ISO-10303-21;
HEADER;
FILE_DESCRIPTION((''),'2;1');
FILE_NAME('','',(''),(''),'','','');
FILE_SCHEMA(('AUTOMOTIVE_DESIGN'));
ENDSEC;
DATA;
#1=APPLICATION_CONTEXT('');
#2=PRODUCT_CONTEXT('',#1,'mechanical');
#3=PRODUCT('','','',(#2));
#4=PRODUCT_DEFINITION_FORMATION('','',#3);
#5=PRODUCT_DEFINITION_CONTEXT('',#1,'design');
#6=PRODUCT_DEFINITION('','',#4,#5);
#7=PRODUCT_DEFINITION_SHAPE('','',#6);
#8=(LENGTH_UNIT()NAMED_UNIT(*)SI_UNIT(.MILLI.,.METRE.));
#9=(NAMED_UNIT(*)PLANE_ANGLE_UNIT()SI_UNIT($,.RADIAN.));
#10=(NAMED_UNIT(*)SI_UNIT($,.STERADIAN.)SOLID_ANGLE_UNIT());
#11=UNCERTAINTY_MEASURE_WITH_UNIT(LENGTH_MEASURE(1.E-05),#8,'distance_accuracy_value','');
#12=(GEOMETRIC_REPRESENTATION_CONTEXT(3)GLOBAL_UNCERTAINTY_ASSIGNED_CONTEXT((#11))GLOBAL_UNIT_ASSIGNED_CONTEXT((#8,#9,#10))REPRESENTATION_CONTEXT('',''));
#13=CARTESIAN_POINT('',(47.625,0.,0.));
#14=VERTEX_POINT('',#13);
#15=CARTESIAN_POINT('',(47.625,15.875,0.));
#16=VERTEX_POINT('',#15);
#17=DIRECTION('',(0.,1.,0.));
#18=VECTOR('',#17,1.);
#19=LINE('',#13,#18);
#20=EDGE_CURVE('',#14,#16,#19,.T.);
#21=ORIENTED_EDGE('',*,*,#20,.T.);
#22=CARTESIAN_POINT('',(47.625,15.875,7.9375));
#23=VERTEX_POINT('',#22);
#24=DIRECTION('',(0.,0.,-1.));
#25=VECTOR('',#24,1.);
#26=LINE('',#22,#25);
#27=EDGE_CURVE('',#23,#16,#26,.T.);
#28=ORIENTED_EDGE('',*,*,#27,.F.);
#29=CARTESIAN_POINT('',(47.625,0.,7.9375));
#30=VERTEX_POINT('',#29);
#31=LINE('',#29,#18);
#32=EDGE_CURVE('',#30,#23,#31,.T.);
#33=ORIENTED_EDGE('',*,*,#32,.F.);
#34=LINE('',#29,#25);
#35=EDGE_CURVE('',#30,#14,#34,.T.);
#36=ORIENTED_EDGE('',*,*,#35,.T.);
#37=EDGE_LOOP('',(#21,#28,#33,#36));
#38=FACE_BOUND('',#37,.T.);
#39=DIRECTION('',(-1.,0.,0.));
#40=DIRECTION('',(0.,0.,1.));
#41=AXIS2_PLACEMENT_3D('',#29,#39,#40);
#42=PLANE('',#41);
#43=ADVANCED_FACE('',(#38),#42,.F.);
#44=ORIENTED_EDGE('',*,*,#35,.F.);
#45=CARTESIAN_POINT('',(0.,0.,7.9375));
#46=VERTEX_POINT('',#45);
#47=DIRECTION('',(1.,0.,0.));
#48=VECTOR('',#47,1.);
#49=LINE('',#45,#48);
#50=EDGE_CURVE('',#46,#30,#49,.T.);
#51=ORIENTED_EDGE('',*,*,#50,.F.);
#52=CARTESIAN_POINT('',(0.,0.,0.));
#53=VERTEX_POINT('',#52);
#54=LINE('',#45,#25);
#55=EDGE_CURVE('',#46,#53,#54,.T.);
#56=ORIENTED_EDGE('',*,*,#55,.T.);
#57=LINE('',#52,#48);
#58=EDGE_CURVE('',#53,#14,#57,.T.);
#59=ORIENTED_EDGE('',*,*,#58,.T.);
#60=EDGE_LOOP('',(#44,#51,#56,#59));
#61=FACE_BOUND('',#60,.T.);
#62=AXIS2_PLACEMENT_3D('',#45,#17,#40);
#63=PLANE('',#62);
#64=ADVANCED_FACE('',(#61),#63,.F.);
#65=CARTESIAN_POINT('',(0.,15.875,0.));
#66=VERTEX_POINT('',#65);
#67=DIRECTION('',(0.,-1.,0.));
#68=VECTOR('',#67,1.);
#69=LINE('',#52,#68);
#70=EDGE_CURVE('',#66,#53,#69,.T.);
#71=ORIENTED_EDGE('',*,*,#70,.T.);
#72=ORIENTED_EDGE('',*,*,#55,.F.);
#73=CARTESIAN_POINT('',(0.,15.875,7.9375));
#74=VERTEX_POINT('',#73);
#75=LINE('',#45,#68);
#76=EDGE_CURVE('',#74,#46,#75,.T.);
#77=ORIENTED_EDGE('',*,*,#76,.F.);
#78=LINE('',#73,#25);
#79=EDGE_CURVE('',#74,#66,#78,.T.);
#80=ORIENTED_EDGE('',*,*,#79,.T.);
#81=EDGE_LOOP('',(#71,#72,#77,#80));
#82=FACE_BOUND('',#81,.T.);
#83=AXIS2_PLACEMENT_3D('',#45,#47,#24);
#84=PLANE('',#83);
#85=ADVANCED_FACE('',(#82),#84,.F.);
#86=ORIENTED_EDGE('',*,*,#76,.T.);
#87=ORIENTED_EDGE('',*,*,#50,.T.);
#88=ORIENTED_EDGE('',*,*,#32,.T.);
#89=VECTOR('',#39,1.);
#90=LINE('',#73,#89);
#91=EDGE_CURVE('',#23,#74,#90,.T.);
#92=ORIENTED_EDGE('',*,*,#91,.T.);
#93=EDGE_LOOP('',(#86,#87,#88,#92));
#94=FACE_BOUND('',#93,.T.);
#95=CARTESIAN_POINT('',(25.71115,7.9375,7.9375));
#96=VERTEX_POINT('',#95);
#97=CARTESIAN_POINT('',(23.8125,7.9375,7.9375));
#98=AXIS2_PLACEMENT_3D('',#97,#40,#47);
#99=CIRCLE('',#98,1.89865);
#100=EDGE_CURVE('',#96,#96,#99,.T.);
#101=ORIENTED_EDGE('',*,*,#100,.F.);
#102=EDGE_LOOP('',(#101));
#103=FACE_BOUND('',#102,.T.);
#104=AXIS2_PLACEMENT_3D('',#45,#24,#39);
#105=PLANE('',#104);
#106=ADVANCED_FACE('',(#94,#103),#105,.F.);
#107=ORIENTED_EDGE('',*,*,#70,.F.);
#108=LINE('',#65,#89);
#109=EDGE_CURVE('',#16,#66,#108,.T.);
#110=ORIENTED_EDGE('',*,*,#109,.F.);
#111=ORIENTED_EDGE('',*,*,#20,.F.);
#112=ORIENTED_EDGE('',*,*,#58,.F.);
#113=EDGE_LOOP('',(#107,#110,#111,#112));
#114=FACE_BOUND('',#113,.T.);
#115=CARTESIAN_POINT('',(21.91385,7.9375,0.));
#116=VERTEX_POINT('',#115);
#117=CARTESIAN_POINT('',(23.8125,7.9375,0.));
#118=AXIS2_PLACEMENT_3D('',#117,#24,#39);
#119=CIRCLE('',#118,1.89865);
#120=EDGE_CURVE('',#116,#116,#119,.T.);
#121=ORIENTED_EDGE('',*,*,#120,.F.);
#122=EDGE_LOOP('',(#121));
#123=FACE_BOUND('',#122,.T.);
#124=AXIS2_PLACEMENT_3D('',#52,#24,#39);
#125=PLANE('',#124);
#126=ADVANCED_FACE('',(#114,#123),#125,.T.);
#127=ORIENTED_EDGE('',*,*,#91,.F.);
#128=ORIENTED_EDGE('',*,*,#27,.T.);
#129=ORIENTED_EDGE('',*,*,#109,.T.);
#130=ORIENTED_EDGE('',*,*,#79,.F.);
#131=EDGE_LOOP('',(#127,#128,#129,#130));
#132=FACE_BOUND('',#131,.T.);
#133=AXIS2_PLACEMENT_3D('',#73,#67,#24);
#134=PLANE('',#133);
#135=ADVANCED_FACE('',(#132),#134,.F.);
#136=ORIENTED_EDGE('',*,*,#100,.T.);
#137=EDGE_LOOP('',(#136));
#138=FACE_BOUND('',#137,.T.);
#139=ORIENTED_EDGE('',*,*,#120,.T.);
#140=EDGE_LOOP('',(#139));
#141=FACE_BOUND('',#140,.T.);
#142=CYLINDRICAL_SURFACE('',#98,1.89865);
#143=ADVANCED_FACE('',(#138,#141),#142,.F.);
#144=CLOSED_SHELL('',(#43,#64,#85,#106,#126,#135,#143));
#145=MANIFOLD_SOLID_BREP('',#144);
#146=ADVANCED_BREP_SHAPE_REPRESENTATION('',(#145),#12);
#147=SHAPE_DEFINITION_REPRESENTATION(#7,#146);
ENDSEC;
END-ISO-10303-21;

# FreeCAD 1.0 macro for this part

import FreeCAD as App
import Part
import Sketcher

V = App.Vector
Q = App.Units.Quantity

doc = App.newDocument("Part")
body = doc.addObject("PartDesign::Body", "Body")

# Sketch on XY plane
sketch1 = body.newObject("Sketcher::SketchObject", "Sketch")
sketch1.AttachmentSupport = (doc.getObject("XY_Plane"), [""])
sketch1.MapMode = "FlatFace"
sketch1.addGeometry(Part.LineSegment(V(0, 16, 0), V(0, 0, 0)), False)
sketch1.addGeometry(Part.LineSegment(V(0, 0, 0), V(48, 0, 0)), False)
sketch1.addGeometry(Part.LineSegment(V(48, 0, 0), V(48, 16, 0)), False)
sketch1.addGeometry(Part.LineSegment(V(48, 16, 0), V(0, 16, 0)), False)
sketch1.addConstraint(Sketcher.Constraint("Coincident", 0, 2, 1, 1))
sketch1.addConstraint(Sketcher.Constraint("Coincident", 1, 2, 2, 1))
sketch1.addConstraint(Sketcher.Constraint("Coincident", 2, 2, 3, 1))
sketch1.addConstraint(Sketcher.Constraint("Coincident", 3, 2, 0, 1))
sketch1.addConstraint(Sketcher.Constraint("Vertical", 0))
sketch1.addConstraint(Sketcher.Constraint("Horizontal", 1))
sketch1.addConstraint(Sketcher.Constraint("Vertical", 2))
sketch1.addConstraint(Sketcher.Constraint("Horizontal", 3))
sketch1.addConstraint(Sketcher.Constraint("Coincident", 0, 2, -1, 1))
sketch1.addConstraint(Sketcher.Constraint("DistanceX", 1, 1, 1, 2, Q("1.875 in")))
sketch1.addConstraint(Sketcher.Constraint("DistanceY", 0, 2, 0, 1, Q("0.625 in")))
pad1 = body.newObject("PartDesign::Pad", "Pad")
pad1.Profile = sketch1
pad1.Length = Q("0.3125 in")

# Sketch on XY plane
sketch2 = body.newObject("Sketcher::SketchObject", "Sketch001")
sketch2.AttachmentSupport = (doc.getObject("XY_Plane"), [""])
sketch2.MapMode = "FlatFace"
sketch2.AttachmentOffset = App.Placement(V(0, 0, 0.3125 * 25.4), App.Rotation())
sketch2.addGeometry(Part.Circle(V(23.8, 7.9, 0), V(0, 0, 1), 1.9), False)
sketch2.addConstraint(Sketcher.Constraint("Diameter", 0, Q("0.1495 in")))
sketch2.addConstraint(Sketcher.Constraint("DistanceX", -1, 1, 0, 3, Q("0.9375 in")))
sketch2.addConstraint(Sketcher.Constraint("DistanceY", -1, 1, 0, 3, Q("0.3125 in")))
doc.recompute()
hole = body.newObject("PartDesign::Hole", "Hole")
hole.Profile = sketch2
hole.ThreadType = "None"
hole.Diameter = Q("0.1495 in")
hole.DepthType = "Dimension"
hole.Depth = Q("0.3125 in")
hole.DrillPoint = "Flat"

doc.recompute()
